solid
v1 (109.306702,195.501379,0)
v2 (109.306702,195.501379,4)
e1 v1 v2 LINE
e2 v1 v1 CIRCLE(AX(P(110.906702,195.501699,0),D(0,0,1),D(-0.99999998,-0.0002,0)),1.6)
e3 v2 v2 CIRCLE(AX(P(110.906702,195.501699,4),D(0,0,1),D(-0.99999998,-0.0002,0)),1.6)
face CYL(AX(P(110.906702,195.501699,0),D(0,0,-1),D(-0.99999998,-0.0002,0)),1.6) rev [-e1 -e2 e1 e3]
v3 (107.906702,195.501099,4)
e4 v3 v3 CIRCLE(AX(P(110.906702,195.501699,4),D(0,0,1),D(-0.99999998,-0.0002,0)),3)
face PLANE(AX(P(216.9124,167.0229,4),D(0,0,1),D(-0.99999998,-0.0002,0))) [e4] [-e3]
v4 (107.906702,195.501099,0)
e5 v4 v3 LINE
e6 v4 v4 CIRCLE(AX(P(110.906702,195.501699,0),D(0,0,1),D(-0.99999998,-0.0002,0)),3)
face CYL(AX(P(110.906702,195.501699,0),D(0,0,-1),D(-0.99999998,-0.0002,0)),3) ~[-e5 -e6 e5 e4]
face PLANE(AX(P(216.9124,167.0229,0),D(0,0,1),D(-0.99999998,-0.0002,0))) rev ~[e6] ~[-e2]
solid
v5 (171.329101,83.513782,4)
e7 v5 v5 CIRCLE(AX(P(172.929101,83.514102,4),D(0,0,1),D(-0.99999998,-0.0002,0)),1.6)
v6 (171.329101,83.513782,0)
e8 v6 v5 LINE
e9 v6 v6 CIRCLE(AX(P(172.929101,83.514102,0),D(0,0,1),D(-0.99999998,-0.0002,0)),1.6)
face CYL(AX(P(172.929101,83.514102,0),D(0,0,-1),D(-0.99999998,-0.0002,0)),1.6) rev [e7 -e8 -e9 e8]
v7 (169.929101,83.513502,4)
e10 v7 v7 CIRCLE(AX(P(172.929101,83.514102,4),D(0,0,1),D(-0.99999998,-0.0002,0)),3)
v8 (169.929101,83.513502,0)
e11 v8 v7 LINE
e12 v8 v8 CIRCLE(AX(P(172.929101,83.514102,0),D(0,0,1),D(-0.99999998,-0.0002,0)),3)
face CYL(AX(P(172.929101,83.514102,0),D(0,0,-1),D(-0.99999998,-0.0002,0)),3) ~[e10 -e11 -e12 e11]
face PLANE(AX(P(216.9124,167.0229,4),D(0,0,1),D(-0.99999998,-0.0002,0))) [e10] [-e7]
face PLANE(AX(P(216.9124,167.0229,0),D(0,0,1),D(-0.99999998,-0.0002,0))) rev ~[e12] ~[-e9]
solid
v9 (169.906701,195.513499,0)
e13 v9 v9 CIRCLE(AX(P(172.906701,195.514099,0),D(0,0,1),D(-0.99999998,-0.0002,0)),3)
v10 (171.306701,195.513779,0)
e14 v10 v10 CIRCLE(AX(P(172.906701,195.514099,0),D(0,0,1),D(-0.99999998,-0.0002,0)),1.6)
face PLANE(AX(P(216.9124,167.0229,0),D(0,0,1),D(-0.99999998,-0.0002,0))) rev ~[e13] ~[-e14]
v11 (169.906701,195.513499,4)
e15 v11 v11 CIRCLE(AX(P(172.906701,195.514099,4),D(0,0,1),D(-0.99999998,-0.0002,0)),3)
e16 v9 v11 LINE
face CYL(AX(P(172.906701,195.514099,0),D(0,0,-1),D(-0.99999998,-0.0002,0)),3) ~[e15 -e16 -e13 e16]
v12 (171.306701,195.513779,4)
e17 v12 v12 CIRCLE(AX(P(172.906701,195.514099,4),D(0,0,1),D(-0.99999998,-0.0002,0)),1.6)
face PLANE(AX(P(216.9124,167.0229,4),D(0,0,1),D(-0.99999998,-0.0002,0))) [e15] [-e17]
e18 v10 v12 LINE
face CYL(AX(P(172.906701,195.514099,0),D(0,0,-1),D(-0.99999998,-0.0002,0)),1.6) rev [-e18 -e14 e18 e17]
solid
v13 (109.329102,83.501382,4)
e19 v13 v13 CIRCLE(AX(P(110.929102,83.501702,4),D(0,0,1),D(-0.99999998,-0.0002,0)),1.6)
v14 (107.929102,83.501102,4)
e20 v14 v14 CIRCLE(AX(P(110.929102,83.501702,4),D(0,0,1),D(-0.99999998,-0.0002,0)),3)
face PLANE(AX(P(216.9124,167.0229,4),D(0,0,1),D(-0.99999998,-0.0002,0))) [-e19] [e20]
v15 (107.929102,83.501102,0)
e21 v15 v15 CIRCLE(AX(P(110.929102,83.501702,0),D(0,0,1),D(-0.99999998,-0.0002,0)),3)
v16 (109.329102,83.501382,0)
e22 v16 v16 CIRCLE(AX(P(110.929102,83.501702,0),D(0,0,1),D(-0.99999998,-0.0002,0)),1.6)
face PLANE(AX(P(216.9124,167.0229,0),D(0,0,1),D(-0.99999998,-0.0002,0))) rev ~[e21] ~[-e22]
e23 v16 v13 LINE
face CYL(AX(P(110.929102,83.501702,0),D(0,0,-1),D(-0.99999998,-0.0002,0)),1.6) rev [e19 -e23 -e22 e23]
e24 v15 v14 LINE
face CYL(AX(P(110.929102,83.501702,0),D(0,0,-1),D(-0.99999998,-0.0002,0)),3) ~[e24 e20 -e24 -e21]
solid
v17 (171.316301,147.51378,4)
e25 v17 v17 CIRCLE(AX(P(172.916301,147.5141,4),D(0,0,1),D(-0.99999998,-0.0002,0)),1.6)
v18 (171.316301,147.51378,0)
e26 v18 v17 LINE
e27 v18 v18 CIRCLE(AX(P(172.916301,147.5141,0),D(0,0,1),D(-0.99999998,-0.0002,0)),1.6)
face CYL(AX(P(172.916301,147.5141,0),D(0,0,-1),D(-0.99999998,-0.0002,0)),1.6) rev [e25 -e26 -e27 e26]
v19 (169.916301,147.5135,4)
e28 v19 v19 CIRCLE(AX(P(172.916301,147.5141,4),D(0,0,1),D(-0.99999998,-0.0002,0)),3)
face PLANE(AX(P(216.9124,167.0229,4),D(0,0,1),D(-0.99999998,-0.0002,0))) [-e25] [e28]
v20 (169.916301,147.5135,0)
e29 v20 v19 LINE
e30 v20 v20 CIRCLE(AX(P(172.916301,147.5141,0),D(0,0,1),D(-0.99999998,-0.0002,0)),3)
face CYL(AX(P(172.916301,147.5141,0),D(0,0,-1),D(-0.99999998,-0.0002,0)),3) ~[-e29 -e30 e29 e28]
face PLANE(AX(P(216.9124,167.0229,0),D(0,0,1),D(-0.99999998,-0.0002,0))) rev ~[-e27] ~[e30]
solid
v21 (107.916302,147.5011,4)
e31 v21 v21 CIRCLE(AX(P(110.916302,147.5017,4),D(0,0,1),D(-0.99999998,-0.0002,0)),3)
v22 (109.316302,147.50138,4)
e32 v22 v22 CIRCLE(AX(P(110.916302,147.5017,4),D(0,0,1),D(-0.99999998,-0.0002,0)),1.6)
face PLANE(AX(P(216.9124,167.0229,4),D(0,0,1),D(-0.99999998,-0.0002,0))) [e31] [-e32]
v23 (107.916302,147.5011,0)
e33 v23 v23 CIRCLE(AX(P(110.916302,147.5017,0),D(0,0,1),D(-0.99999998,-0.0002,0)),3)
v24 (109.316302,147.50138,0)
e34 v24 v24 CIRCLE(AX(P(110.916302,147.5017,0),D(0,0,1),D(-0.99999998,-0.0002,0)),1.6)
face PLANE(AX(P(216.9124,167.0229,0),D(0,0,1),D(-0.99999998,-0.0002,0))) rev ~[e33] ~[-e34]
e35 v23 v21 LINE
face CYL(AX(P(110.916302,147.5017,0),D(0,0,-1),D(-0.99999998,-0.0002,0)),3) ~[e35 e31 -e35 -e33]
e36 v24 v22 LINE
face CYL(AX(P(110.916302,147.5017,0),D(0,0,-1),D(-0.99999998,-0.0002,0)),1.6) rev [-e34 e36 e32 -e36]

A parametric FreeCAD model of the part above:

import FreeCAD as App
import Part
import Sketcher
Q = App.Units.Quantity

doc = App.newDocument("Part")
body = doc.addObject("PartDesign::Body", "Body")
body.AllowCompound = True

sketch1 = body.newObject("Sketcher::SketchObject", "Sketch")
sketch1.AttachmentSupport = (doc.getObject("XY_Plane"), [""])
sketch1.MapMode = "FlatFace"
sketch1.addGeometry(Part.Circle(App.Vector(110.9, 195.5, 0), App.Vector(0, 0, 1), 3), False)
sketch1.addGeometry(Part.Circle(App.Vector(110.9, 195.5, 0), App.Vector(0, 0, 1), 1.6), False)
sketch1.addGeometry(Part.Circle(App.Vector(172.9, 195.5, 0), App.Vector(0, 0, 1), 3), False)
sketch1.addGeometry(Part.Circle(App.Vector(172.9, 195.5, 0), App.Vector(0, 0, 1), 1.6), False)
sketch1.addGeometry(Part.Circle(App.Vector(110.9, 147.5, 0), App.Vector(0, 0, 1), 3), False)
sketch1.addGeometry(Part.Circle(App.Vector(110.9, 147.5, 0), App.Vector(0, 0, 1), 1.6), False)
sketch1.addGeometry(Part.Circle(App.Vector(172.9, 147.5, 0), App.Vector(0, 0, 1), 3), False)
sketch1.addGeometry(Part.Circle(App.Vector(172.9, 147.5, 0), App.Vector(0, 0, 1), 1.6), False)
sketch1.addGeometry(Part.Circle(App.Vector(172.9, 83.5, 0), App.Vector(0, 0, 1), 3), False)
sketch1.addGeometry(Part.Circle(App.Vector(172.9, 83.5, 0), App.Vector(0, 0, 1), 1.6), False)
sketch1.addGeometry(Part.Circle(App.Vector(110.9, 83.5, 0), App.Vector(0, 0, 1), 3), False)
sketch1.addGeometry(Part.Circle(App.Vector(110.9, 83.5, 0), App.Vector(0, 0, 1), 1.6), False)
sketch1.addConstraint(Sketcher.Constraint("Coincident", 1, 3, 0, 3))
sketch1.addConstraint(Sketcher.Constraint("Coincident", 3, 3, 2, 3))
sketch1.addConstraint(Sketcher.Constraint("Coincident", 5, 3, 4, 3))
sketch1.addConstraint(Sketcher.Constraint("Coincident", 7, 3, 6, 3))
sketch1.addConstraint(Sketcher.Constraint("Coincident", 9, 3, 8, 3))
sketch1.addConstraint(Sketcher.Constraint("Coincident", 11, 3, 10, 3))
sketch1.addConstraint(Sketcher.Constraint("Equal", 0, 2))
sketch1.addConstraint(Sketcher.Constraint("Equal", 1, 3))
sketch1.addConstraint(Sketcher.Constraint("Equal", 2, 4))
sketch1.addConstraint(Sketcher.Constraint("Equal", 3, 5))
sketch1.addConstraint(Sketcher.Constraint("Equal", 4, 6))
sketch1.addConstraint(Sketcher.Constraint("Equal", 5, 7))
sketch1.addConstraint(Sketcher.Constraint("Equal", 6, 8))
sketch1.addConstraint(Sketcher.Constraint("Equal", 7, 9))
sketch1.addConstraint(Sketcher.Constraint("Equal", 8, 10))
sketch1.addConstraint(Sketcher.Constraint("Equal", 9, 11))
sketch1.addConstraint(Sketcher.Constraint("Diameter", 0, Q("6 mm")))
sketch1.addConstraint(Sketcher.Constraint("Diameter", 1, Q("3.2 mm")))
sketch1.addConstraint(Sketcher.Constraint("DistanceX", 0, 3, 2, 3, Q("62 mm")))
sketch1.addConstraint(Sketcher.Constraint("DistanceY", 4, 3, 0, 3, Q("48 mm")))
sketch1.addConstraint(Sketcher.Constraint("DistanceY", 6, 3, 2, 3, Q("48 mm")))
sketch1.addConstraint(Sketcher.Constraint("DistanceX", 4, 3, 6, 3, Q("62 mm")))
sketch1.addConstraint(Sketcher.Constraint("DistanceY", 8, 3, 6, 3, Q("64 mm")))
sketch1.addConstraint(Sketcher.Constraint("DistanceX", 10, 3, 8, 3, Q("62 mm")))
sketch1.addConstraint(Sketcher.Constraint("DistanceY", 10, 3, 4, 3, Q("64 mm")))
sketch1.addConstraint(Sketcher.Constraint("DistanceY", -1, 1, 2, 3, Q("195.514 mm")))
sketch1.addConstraint(Sketcher.Constraint("DistanceX", -1, 1, 8, 3, Q("172.929 mm")))
sketch1.addConstraint(Sketcher.Constraint("DistanceX", -1, 1, 0, 3, Q("110.9067 mm")))
sketch1.addConstraint(Sketcher.Constraint("DistanceY", -1, 1, 0, 3, Q("195.5017 mm")))
sketch1.addConstraint(Sketcher.Constraint("DistanceX", -1, 1, 4, 3, Q("110.9163 mm")))
pad1 = body.newObject("PartDesign::Pad", "Pad")
pad1.Profile = sketch1
pad1.Length = 4

doc.recompute()
